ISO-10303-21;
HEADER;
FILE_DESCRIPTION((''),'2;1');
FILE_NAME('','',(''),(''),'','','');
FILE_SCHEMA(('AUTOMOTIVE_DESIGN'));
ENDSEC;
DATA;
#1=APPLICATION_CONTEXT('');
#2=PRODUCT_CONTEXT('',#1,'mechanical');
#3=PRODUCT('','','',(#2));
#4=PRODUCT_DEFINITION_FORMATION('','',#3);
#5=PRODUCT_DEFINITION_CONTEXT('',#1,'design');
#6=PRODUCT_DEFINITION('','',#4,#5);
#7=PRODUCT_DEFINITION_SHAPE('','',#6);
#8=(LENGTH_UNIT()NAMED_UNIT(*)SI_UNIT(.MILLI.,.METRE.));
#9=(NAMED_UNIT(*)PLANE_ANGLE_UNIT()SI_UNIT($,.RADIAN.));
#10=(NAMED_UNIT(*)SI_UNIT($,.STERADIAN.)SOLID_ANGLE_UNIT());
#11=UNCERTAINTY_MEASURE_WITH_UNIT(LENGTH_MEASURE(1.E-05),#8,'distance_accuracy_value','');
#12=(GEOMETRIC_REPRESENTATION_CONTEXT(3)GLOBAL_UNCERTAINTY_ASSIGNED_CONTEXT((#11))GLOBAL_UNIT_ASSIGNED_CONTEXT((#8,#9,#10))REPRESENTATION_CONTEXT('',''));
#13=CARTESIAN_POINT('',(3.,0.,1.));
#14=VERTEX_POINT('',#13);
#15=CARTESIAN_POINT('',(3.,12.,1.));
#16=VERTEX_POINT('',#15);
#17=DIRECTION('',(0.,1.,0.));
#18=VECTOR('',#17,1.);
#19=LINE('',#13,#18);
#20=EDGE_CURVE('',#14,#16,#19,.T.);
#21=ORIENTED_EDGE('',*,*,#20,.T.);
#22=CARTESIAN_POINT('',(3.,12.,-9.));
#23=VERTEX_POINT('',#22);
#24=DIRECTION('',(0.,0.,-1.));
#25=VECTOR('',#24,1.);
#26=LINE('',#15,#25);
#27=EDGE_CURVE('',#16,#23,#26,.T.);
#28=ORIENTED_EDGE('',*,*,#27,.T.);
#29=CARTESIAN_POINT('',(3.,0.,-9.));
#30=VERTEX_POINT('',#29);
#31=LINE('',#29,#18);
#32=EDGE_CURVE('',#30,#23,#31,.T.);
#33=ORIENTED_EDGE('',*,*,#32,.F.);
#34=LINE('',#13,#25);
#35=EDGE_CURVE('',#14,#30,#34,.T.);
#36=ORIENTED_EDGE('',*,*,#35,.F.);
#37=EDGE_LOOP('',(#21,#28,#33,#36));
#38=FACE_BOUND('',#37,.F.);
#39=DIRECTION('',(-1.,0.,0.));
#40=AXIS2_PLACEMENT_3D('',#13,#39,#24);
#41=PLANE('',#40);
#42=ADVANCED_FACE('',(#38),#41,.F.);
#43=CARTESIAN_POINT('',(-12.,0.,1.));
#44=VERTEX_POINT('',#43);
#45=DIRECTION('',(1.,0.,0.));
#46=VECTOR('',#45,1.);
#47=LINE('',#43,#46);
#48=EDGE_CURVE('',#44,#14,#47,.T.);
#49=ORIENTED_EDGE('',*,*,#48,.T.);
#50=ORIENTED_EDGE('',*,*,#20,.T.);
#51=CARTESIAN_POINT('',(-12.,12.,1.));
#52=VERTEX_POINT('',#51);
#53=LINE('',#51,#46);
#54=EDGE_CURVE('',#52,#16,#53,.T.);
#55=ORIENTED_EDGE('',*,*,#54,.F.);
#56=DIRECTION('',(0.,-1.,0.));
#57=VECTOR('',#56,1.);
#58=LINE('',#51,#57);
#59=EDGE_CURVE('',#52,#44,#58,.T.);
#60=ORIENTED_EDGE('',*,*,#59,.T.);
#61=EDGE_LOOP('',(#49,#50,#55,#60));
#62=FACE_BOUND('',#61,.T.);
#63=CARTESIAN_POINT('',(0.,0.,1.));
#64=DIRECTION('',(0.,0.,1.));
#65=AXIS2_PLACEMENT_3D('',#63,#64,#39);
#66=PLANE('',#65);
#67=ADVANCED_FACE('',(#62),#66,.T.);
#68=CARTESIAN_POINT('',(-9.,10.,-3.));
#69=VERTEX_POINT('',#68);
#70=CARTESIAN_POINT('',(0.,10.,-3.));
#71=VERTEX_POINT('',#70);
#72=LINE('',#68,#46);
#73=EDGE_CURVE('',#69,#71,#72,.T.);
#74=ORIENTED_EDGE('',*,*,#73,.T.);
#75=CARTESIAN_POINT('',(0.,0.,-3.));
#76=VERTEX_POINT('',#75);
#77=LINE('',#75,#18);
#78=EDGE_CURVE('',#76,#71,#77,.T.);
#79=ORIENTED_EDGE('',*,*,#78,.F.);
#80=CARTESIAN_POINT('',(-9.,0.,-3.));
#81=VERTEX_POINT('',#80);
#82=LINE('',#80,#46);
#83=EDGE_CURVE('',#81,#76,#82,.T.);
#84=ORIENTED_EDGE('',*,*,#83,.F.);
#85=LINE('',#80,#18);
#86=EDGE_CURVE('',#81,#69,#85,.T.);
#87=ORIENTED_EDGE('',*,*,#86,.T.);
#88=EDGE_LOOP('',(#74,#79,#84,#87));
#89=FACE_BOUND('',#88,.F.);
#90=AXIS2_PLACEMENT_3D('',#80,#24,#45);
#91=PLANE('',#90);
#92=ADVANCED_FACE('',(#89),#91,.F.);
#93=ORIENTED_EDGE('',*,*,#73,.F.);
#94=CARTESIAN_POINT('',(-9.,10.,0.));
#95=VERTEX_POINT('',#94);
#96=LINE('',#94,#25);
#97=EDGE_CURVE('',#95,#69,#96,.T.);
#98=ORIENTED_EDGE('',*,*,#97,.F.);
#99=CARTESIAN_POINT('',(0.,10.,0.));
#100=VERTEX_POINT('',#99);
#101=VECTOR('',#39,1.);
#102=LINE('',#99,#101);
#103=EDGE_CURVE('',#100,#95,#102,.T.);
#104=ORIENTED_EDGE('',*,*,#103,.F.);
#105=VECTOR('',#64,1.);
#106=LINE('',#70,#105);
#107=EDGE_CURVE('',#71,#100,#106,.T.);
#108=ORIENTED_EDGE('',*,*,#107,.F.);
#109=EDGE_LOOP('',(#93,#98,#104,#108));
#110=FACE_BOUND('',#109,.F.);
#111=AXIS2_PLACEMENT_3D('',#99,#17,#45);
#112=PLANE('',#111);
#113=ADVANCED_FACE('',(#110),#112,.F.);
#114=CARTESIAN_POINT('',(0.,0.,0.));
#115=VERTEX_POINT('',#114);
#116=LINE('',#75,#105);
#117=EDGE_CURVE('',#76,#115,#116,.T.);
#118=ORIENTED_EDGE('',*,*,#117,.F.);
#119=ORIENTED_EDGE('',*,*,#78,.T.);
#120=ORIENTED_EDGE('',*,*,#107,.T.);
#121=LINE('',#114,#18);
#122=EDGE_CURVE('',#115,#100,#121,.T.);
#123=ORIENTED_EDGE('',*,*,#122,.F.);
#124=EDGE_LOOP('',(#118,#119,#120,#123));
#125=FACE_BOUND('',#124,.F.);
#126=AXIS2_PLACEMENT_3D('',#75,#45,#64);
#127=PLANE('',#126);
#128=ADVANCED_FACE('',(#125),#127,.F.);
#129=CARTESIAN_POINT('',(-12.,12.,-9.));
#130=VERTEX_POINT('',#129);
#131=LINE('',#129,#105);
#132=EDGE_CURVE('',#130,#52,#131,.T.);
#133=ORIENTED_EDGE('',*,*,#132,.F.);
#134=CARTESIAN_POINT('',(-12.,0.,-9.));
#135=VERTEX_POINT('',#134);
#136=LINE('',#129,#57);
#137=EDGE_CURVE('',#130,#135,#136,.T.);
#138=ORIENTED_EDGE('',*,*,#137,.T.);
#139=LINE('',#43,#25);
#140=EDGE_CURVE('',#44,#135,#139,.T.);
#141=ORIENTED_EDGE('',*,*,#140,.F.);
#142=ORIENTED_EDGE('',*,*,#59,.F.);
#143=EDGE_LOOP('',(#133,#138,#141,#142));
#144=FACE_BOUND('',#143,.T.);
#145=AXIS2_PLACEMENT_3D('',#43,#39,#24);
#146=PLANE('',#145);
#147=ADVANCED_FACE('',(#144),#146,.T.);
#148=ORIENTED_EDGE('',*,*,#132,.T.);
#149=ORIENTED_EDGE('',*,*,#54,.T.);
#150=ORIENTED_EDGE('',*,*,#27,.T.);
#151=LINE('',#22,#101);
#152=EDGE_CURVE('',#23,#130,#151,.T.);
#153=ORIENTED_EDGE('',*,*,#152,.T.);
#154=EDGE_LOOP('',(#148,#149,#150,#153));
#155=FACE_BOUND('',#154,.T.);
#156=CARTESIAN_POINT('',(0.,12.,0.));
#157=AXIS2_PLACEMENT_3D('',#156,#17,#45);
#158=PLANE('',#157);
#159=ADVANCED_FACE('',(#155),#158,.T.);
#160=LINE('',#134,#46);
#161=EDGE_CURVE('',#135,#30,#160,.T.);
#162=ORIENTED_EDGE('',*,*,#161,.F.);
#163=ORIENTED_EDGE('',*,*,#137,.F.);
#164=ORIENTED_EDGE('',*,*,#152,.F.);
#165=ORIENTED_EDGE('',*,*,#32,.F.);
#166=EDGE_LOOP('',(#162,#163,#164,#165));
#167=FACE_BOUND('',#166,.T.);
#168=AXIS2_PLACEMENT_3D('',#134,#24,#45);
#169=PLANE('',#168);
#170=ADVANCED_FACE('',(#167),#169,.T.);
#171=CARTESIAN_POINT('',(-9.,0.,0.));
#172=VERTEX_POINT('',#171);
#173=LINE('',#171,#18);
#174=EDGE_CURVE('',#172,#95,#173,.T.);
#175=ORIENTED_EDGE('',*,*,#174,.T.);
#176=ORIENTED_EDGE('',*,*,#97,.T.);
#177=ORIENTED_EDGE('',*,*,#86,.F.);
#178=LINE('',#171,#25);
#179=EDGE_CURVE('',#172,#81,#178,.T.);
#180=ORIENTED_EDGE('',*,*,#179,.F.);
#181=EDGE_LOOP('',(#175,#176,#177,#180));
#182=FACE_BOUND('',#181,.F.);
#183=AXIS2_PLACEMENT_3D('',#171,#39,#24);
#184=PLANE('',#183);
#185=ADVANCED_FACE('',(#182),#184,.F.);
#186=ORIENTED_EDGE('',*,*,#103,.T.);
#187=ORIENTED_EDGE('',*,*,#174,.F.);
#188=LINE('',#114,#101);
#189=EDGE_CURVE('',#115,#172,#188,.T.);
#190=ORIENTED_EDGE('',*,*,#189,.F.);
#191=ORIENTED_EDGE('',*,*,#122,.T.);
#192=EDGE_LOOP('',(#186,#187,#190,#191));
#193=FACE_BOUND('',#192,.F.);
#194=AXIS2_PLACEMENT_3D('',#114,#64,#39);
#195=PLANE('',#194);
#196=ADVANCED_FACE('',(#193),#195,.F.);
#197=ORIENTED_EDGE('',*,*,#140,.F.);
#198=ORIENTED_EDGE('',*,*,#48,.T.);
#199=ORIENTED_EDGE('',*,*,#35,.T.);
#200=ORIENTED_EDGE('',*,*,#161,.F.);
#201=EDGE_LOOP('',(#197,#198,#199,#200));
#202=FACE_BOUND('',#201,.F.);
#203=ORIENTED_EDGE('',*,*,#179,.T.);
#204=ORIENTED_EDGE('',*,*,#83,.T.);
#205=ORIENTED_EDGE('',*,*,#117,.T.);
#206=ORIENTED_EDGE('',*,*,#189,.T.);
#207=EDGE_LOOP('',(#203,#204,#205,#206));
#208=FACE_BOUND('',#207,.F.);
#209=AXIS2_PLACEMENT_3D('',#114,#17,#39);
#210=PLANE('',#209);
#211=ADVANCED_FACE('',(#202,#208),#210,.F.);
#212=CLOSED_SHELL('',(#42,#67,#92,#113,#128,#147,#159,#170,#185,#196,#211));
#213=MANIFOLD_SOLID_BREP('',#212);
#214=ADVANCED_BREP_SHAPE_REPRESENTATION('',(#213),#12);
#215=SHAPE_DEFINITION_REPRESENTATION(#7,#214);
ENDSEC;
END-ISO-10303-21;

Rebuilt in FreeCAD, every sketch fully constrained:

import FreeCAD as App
import Part
import Sketcher
from FreeCAD import Vector
Q = App.Units.Quantity

doc = App.newDocument("Part")
body = doc.addObject("PartDesign::Body", "Body")

sketch1 = doc.addObject("Sketcher::SketchObject", "Sketch")
body.addObject(sketch1)
sketch1.AttachmentSupport = (doc.XZ_Plane, [""])
sketch1.MapMode = "FlatFace"
sketch1.addGeometry([
    Part.LineSegment(Vector(-12, 1, 0), Vector(3, 1, 0)),
    Part.LineSegment(Vector(3, 1, 0), Vector(3, -9, 0)),
    Part.LineSegment(Vector(3, -9, 0), Vector(-12, -9, 0)),
    Part.LineSegment(Vector(-12, -9, 0), Vector(-12, 1, 0)),
    Part.LineSegment(Vector(0, -3, 0), Vector(0, 0, 0)),
    Part.LineSegment(Vector(0, 0, 0), Vector(-9, 0, 0)),
    Part.LineSegment(Vector(-9, 0, 0), Vector(-9, -3, 0)),
    Part.LineSegment(Vector(-9, -3, 0), Vector(0, -3, 0)),
], False)
sketch1.addConstraint([
    Sketcher.Constraint("Coincident", 0, 2, 1, 1),
    Sketcher.Constraint("Coincident", 1, 2, 2, 1),
    Sketcher.Constraint("Coincident", 2, 2, 3, 1),
    Sketcher.Constraint("Coincident", 3, 2, 0, 1),
    Sketcher.Constraint("Coincident", 4, 2, 5, 1),
    Sketcher.Constraint("Coincident", 5, 2, 6, 1),
    Sketcher.Constraint("Coincident", 6, 2, 7, 1),
    Sketcher.Constraint("Coincident", 7, 2, 4, 1),
    Sketcher.Constraint("Horizontal", 0),
    Sketcher.Constraint("Vertical", 1),
    Sketcher.Constraint("Horizontal", 2),
    Sketcher.Constraint("Vertical", 3),
    Sketcher.Constraint("Vertical", 4),
    Sketcher.Constraint("Horizontal", 5),
    Sketcher.Constraint("Vertical", 6),
    Sketcher.Constraint("Horizontal", 7),
    Sketcher.Constraint("Coincident", 4, 2, -1, 1),
    Sketcher.Constraint("DistanceY", 1, 2, 1, 1, Q("10 mm")),
    Sketcher.Constraint("DistanceY", 4, 1, 4, 2, Q("3 mm")),
    Sketcher.Constraint("DistanceX", -1, 1, 0, 2, Q("3 mm")),
    Sketcher.Constraint("DistanceX", 2, 2, -1, 1, Q("12 mm")),
    Sketcher.Constraint("DistanceX", 3, 2, 5, 2, Q("3 mm")),
    Sketcher.Constraint("DistanceY", -1, 1, 0, 2, Q("1 mm")),
])
pad1 = doc.addObject("PartDesign::Pad", "Pad")
body.addObject(pad1)
pad1.Profile = sketch1
pad1.Length = 10
pad1.Reversed = True

sketch2 = doc.addObject("Sketcher::SketchObject", "Sketch001")
body.addObject(sketch2)
sketch2.AttachmentSupport = (doc.XZ_Plane, [""])
sketch2.MapMode = "FlatFace"
sketch2.AttachmentOffset = App.Placement(Vector(0, 0, -10), App.Rotation())
sketch2.addGeometry([
    Part.LineSegment(Vector(3, -9, 0), Vector(-12, -9, 0)),
    Part.LineSegment(Vector(-12, -9, 0), Vector(-12, 1, 0)),
    Part.LineSegment(Vector(-12, 1, 0), Vector(3, 1, 0)),
    Part.LineSegment(Vector(3, 1, 0), Vector(3, -9, 0)),
], False)
sketch2.addConstraint([
    Sketcher.Constraint("Coincident", 0, 2, 1, 1),
    Sketcher.Constraint("Coincident", 1, 2, 2, 1),
    Sketcher.Constraint("Coincident", 2, 2, 3, 1),
    Sketcher.Constraint("Coincident", 3, 2, 0, 1),
    Sketcher.Constraint("Horizontal", 0),
    Sketcher.Constraint("Vertical", 1),
    Sketcher.Constraint("Horizontal", 2),
    Sketcher.Constraint("Vertical", 3),
    Sketcher.Constraint("DistanceX", 0, 2, 0, 1, Q("15 mm")),
    Sketcher.Constraint("DistanceY", 1, 1, 1, 2, Q("10 mm")),
    Sketcher.Constraint("DistanceX", 0, 2, -1, 1, Q("12 mm")),
    Sketcher.Constraint("DistanceY", 0, 2, -1, 1, Q("9 mm")),
])
pad2 = doc.addObject("PartDesign::Pad", "Pad001")
body.addObject(pad2)
pad2.Profile = sketch2
pad2.Length = 2
pad2.Reversed = True

doc.recompute()
